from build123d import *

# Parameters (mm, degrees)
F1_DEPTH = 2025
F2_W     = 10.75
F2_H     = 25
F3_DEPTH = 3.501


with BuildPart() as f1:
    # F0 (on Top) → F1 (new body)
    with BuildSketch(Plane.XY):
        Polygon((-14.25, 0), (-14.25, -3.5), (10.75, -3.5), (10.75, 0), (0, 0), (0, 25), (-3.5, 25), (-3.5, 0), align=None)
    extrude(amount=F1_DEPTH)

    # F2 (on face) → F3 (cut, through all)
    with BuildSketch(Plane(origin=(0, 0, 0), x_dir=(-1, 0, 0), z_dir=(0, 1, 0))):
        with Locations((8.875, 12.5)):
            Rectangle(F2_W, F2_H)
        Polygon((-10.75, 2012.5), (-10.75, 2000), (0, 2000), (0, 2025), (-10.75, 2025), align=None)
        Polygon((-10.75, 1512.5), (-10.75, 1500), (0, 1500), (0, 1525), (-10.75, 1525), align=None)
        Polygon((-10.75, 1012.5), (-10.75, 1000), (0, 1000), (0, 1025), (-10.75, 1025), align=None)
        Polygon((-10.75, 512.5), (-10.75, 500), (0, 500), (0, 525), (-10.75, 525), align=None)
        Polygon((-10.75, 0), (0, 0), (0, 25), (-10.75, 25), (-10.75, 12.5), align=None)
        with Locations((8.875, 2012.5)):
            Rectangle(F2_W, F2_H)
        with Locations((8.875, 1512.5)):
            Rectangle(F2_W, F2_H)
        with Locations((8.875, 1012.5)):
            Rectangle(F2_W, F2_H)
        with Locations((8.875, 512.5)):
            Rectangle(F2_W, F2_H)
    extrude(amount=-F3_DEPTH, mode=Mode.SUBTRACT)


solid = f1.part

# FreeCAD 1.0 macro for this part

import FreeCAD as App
import Part
import Sketcher

V = App.Vector
Q = App.Units.Quantity

doc = App.newDocument("Part")
params = doc.addObject("Spreadsheet::Sheet", "Params")
for row, (alias, value) in enumerate([
    ("sketch1_width", "25 mm"),
    ("sketch1_width2", "3.5 mm"),
    ("pad1_length", "2025 mm"),
    ("sketch2_height", "25 mm"),
    ("sketch2_width", "10.75 mm"),
], start=1):
    params.set(f"A{row}", alias)
    params.set(f"B{row}", "=" + value)
    params.setAlias(f"B{row}", alias)

body = doc.addObject("PartDesign::Body", "Body")

sketch1 = body.newObject("Sketcher::SketchObject", "Sketch")
sketch1.AttachmentSupport = (doc.getObject("XY_Plane"), [""])
sketch1.MapMode = "FlatFace"
sketch1.addGeometry([
    Part.LineSegment(V(-14.2, 0, 0), V(-14.2, -3.5, 0)),
    Part.LineSegment(V(-14.2, -3.5, 0), V(10.8, -3.5, 0)),
    Part.LineSegment(V(10.8, -3.5, 0), V(10.8, 0, 0)),
    Part.LineSegment(V(10.8, 0, 0), V(0, 0, 0)),
    Part.LineSegment(V(0, 0, 0), V(0, 25, 0)),
    Part.LineSegment(V(0, 25, 0), V(-3.5, 25, 0)),
    Part.LineSegment(V(-3.5, 25, 0), V(-3.5, 0, 0)),
    Part.LineSegment(V(-3.5, 0, 0), V(-14.2, 0, 0)),
], False)
sketch1.addConstraint([
    Sketcher.Constraint("Coincident", 0, 2, 1, 1),
    Sketcher.Constraint("Coincident", 1, 2, 2, 1),
    Sketcher.Constraint("Coincident", 2, 2, 3, 1),
    Sketcher.Constraint("Coincident", 3, 2, 4, 1),
    Sketcher.Constraint("Coincident", 4, 2, 5, 1),
    Sketcher.Constraint("Coincident", 5, 2, 6, 1),
    Sketcher.Constraint("Coincident", 6, 2, 7, 1),
    Sketcher.Constraint("Coincident", 7, 2, 0, 1),
    Sketcher.Constraint("Vertical", 0),
    Sketcher.Constraint("Horizontal", 1),
    Sketcher.Constraint("Vertical", 2),
    Sketcher.Constraint("Horizontal", 3),
    Sketcher.Constraint("Vertical", 4),
    Sketcher.Constraint("Horizontal", 5),
    Sketcher.Constraint("Vertical", 6),
    Sketcher.Constraint("Horizontal", 7),
    Sketcher.Constraint("Coincident", 3, 2, -1, 1),
    Sketcher.Constraint("PointOnObject", 6, 2, -1),
    Sketcher.Constraint("Equal", 3, 7),
    Sketcher.Constraint("Equal", 5, 0),
    Sketcher.Constraint("Equal", 1, 4),
    Sketcher.Constraint("DistanceX", 1, 1, 1, 2, Q("25 mm")),
    Sketcher.Constraint("DistanceX", 5, 2, 5, 1, Q("3.5 mm")),
])
sketch1.setExpression("Constraints[21]", "Params.sketch1_width")
sketch1.setExpression("Constraints[22]", "Params.sketch1_width2")
pad1 = body.newObject("PartDesign::Pad", "Pad")
pad1.Profile = sketch1
pad1.setExpression("Length", "Params.pad1_length")

sketch2 = body.newObject("Sketcher::SketchObject", "Sketch001")
sketch2.AttachmentSupport = (doc.getObject("XZ_Plane"), [""])
sketch2.MapMode = "FlatFace"
sketch2.addGeometry([
    Part.LineSegment(V(-4, 25, 0), V(-4, 0, 0)),
    Part.LineSegment(V(-4, 0, 0), V(-14, 0, 0)),
    Part.LineSegment(V(-14, 0, 0), V(-14, 25, 0)),
    Part.LineSegment(V(-14, 25, 0), V(-4, 25, 0)),
    Part.LineSegment(V(11, 2000, 0), V(0, 2000, 0)),
    Part.LineSegment(V(0, 2000, 0), V(0, 2025, 0)),
    Part.LineSegment(V(0, 2025, 0), V(11, 2025, 0)),
    Part.LineSegment(V(11, 2025, 0), V(11, 2000, 0)),
    Part.LineSegment(V(11, 1500, 0), V(0, 1500, 0)),
    Part.LineSegment(V(0, 1500, 0), V(0, 1525, 0)),
    Part.LineSegment(V(0, 1525, 0), V(11, 1525, 0)),
    Part.LineSegment(V(11, 1525, 0), V(11, 1500, 0)),
    Part.LineSegment(V(11, 1000, 0), V(0, 1000, 0)),
    Part.LineSegment(V(0, 1000, 0), V(0, 1025, 0)),
    Part.LineSegment(V(0, 1025, 0), V(11, 1025, 0)),
    Part.LineSegment(V(11, 1025, 0), V(11, 1000, 0)),
    Part.LineSegment(V(11, 500, 0), V(0, 500, 0)),
    Part.LineSegment(V(0, 500, 0), V(0, 525, 0)),
    Part.LineSegment(V(0, 525, 0), V(11, 525, 0)),
    Part.LineSegment(V(11, 525, 0), V(11, 500, 0)),
    Part.LineSegment(V(11, 0, 0), V(0, 0, 0)),
    Part.LineSegment(V(0, 0, 0), V(0, 25, 0)),
    Part.LineSegment(V(0, 25, 0), V(11, 25, 0)),
    Part.LineSegment(V(11, 25, 0), V(11, 0, 0)),
    Part.LineSegment(V(-4, 2025, 0), V(-4, 2000, 0)),
    Part.LineSegment(V(-4, 2000, 0), V(-14, 2000, 0)),
    Part.LineSegment(V(-14, 2000, 0), V(-14, 2025, 0)),
    Part.LineSegment(V(-14, 2025, 0), V(-4, 2025, 0)),
    Part.LineSegment(V(-4, 1525, 0), V(-4, 1500, 0)),
    Part.LineSegment(V(-4, 1500, 0), V(-14, 1500, 0)),
    Part.LineSegment(V(-14, 1500, 0), V(-14, 1525, 0)),
    Part.LineSegment(V(-14, 1525, 0), V(-4, 1525, 0)),
    Part.LineSegment(V(-4, 1025, 0), V(-4, 1000, 0)),
    Part.LineSegment(V(-4, 1000, 0), V(-14, 1000, 0)),
    Part.LineSegment(V(-14, 1000, 0), V(-14, 1025, 0)),
    Part.LineSegment(V(-14, 1025, 0), V(-4, 1025, 0)),
    Part.LineSegment(V(-4, 525, 0), V(-4, 500, 0)),
    Part.LineSegment(V(-4, 500, 0), V(-14, 500, 0)),
    Part.LineSegment(V(-14, 500, 0), V(-14, 525, 0)),
    Part.LineSegment(V(-14, 525, 0), V(-4, 525, 0)),
], False)
sketch2.addConstraint([
    Sketcher.Constraint("Coincident", 0, 2, 1, 1),
    Sketcher.Constraint("Coincident", 1, 2, 2, 1),
    Sketcher.Constraint("Coincident", 2, 2, 3, 1),
    Sketcher.Constraint("Coincident", 3, 2, 0, 1),
    Sketcher.Constraint("Coincident", 4, 2, 5, 1),
    Sketcher.Constraint("Coincident", 5, 2, 6, 1),
    Sketcher.Constraint("Coincident", 6, 2, 7, 1),
    Sketcher.Constraint("Coincident", 7, 2, 4, 1),
    Sketcher.Constraint("Coincident", 8, 2, 9, 1),
    Sketcher.Constraint("Coincident", 9, 2, 10, 1),
    Sketcher.Constraint("Coincident", 10, 2, 11, 1),
    Sketcher.Constraint("Coincident", 11, 2, 8, 1),
    Sketcher.Constraint("Coincident", 12, 2, 13, 1),
    Sketcher.Constraint("Coincident", 13, 2, 14, 1),
    Sketcher.Constraint("Coincident", 14, 2, 15, 1),
    Sketcher.Constraint("Coincident", 15, 2, 12, 1),
    Sketcher.Constraint("Coincident", 16, 2, 17, 1),
    Sketcher.Constraint("Coincident", 17, 2, 18, 1),
    Sketcher.Constraint("Coincident", 18, 2, 19, 1),
    Sketcher.Constraint("Coincident", 19, 2, 16, 1),
    Sketcher.Constraint("Coincident", 20, 2, 21, 1),
    Sketcher.Constraint("Coincident", 21, 2, 22, 1),
    Sketcher.Constraint("Coincident", 22, 2, 23, 1),
    Sketcher.Constraint("Coincident", 23, 2, 20, 1),
    Sketcher.Constraint("Coincident", 24, 2, 25, 1),
    Sketcher.Constraint("Coincident", 25, 2, 26, 1),
    Sketcher.Constraint("Coincident", 26, 2, 27, 1),
    Sketcher.Constraint("Coincident", 27, 2, 24, 1),
    Sketcher.Constraint("Coincident", 28, 2, 29, 1),
    Sketcher.Constraint("Coincident", 29, 2, 30, 1),
    Sketcher.Constraint("Coincident", 30, 2, 31, 1),
    Sketcher.Constraint("Coincident", 31, 2, 28, 1),
    Sketcher.Constraint("Coincident", 32, 2, 33, 1),
    Sketcher.Constraint("Coincident", 33, 2, 34, 1),
    Sketcher.Constraint("Coincident", 34, 2, 35, 1),
    Sketcher.Constraint("Coincident", 35, 2, 32, 1),
    Sketcher.Constraint("Coincident", 36, 2, 37, 1),
    Sketcher.Constraint("Coincident", 37, 2, 38, 1),
    Sketcher.Constraint("Coincident", 38, 2, 39, 1),
    Sketcher.Constraint("Coincident", 39, 2, 36, 1),
    Sketcher.Constraint("Vertical", 0),
    Sketcher.Constraint("Horizontal", 1),
    Sketcher.Constraint("Vertical", 2),
    Sketcher.Constraint("Horizontal", 3),
    Sketcher.Constraint("Horizontal", 4),
    Sketcher.Constraint("Vertical", 5),
    Sketcher.Constraint("Horizontal", 6),
    Sketcher.Constraint("Vertical", 7),
    Sketcher.Constraint("Horizontal", 8),
    Sketcher.Constraint("Vertical", 9),
    Sketcher.Constraint("Horizontal", 10),
    Sketcher.Constraint("Vertical", 11),
    Sketcher.Constraint("Horizontal", 12),
    Sketcher.Constraint("Vertical", 13),
    Sketcher.Constraint("Horizontal", 14),
    Sketcher.Constraint("Vertical", 15),
    Sketcher.Constraint("Horizontal", 16),
    Sketcher.Constraint("Vertical", 17),
    Sketcher.Constraint("Horizontal", 18),
    Sketcher.Constraint("Vertical", 19),
    Sketcher.Constraint("Horizontal", 20),
    Sketcher.Constraint("Vertical", 21),
    Sketcher.Constraint("Horizontal", 22),
    Sketcher.Constraint("Vertical", 23),
    Sketcher.Constraint("Vertical", 24),
    Sketcher.Constraint("Horizontal", 25),
    Sketcher.Constraint("Vertical", 26),
    Sketcher.Constraint("Horizontal", 27),
    Sketcher.Constraint("Vertical", 28),
    Sketcher.Constraint("Horizontal", 29),
    Sketcher.Constraint("Vertical", 30),
    Sketcher.Constraint("Horizontal", 31),
    Sketcher.Constraint("Vertical", 32),
    Sketcher.Constraint("Horizontal", 33),
    Sketcher.Constraint("Vertical", 34),
    Sketcher.Constraint("Horizontal", 35),
    Sketcher.Constraint("Vertical", 36),
    Sketcher.Constraint("Horizontal", 37),
    Sketcher.Constraint("Vertical", 38),
    Sketcher.Constraint("Horizontal", 39),
    Sketcher.Constraint("Coincident", 20, 2, -1, 1),
    Sketcher.Constraint("PointOnObject", 0, 2, -1),
    Sketcher.Constraint("PointOnObject", 4, 2, -2),
    Sketcher.Constraint("PointOnObject", 8, 2, -2),
    Sketcher.Constraint("PointOnObject", 12, 2, -2),
    Sketcher.Constraint("PointOnObject", 16, 2, -2),
    Sketcher.Constraint("Horizontal", 3, 2, 21, 2),
    Sketcher.Constraint("Horizontal", 7, 2, 24, 2),
    Sketcher.Constraint("Horizontal", 6, 2, 26, 2),
    Sketcher.Constraint("Horizontal", 11, 2, 28, 2),
    Sketcher.Constraint("Horizontal", 10, 2, 30, 2),
    Sketcher.Constraint("Horizontal", 15, 2, 32, 2),
    Sketcher.Constraint("Horizontal", 14, 2, 34, 2),
    Sketcher.Constraint("Horizontal", 19, 2, 36, 2),
    Sketcher.Constraint("Horizontal", 18, 2, 38, 2),
    Sketcher.Constraint("Vertical", 7, 2, 10, 2),
    Sketcher.Constraint("Vertical", 11, 2, 14, 2),
    Sketcher.Constraint("Vertical", 15, 2, 18, 2),
    Sketcher.Constraint("Vertical", 19, 2, 22, 2),
    Sketcher.Constraint("Vertical", 3, 2, 24, 2),
    Sketcher.Constraint("Vertical", 2, 2, 25, 2),
    Sketcher.Constraint("Vertical", 27, 2, 28, 2),
    Sketcher.Constraint("Vertical", 26, 2, 29, 2),
    Sketcher.Constraint("Vertical", 31, 2, 32, 2),
    Sketcher.Constraint("Vertical", 30, 2, 33, 2),
    Sketcher.Constraint("Vertical", 35, 2, 36, 2),
    Sketcher.Constraint("Vertical", 34, 2, 37, 2),
    Sketcher.Constraint("Equal", 3, 4),
    Sketcher.Constraint("Equal", 2, 5),
    Sketcher.Constraint("Equal", 7, 9),
    Sketcher.Constraint("Equal", 11, 13),
    Sketcher.Constraint("Equal", 15, 17),
    Sketcher.Constraint("DistanceY", 0, 2, 0, 1, Q("25 mm")),
    Sketcher.Constraint("DistanceY", -1, 1, 4, 2, Q("2000 mm")),
    Sketcher.Constraint("DistanceY", -1, 1, 8, 2, Q("1500 mm")),
    Sketcher.Constraint("DistanceY", -1, 1, 12, 2, Q("1000 mm")),
    Sketcher.Constraint("DistanceY", -1, 1, 16, 2, Q("500 mm")),
    Sketcher.Constraint("DistanceX", 2, 2, 6, 2, Q("25 mm")),
    Sketcher.Constraint("DistanceX", 1, 2, 1, 1, Q("10.75 mm")),
])
sketch2.setExpression("Constraints[112]", "Params.sketch2_height")
sketch2.setExpression("Constraints[118]", "Params.sketch2_width")
pocket1 = body.newObject("PartDesign::Pocket", "Pocket")
pocket1.Profile = sketch2
pocket1.Type = "ThroughAll"
pocket1.Reversed = True

doc.recompute()
